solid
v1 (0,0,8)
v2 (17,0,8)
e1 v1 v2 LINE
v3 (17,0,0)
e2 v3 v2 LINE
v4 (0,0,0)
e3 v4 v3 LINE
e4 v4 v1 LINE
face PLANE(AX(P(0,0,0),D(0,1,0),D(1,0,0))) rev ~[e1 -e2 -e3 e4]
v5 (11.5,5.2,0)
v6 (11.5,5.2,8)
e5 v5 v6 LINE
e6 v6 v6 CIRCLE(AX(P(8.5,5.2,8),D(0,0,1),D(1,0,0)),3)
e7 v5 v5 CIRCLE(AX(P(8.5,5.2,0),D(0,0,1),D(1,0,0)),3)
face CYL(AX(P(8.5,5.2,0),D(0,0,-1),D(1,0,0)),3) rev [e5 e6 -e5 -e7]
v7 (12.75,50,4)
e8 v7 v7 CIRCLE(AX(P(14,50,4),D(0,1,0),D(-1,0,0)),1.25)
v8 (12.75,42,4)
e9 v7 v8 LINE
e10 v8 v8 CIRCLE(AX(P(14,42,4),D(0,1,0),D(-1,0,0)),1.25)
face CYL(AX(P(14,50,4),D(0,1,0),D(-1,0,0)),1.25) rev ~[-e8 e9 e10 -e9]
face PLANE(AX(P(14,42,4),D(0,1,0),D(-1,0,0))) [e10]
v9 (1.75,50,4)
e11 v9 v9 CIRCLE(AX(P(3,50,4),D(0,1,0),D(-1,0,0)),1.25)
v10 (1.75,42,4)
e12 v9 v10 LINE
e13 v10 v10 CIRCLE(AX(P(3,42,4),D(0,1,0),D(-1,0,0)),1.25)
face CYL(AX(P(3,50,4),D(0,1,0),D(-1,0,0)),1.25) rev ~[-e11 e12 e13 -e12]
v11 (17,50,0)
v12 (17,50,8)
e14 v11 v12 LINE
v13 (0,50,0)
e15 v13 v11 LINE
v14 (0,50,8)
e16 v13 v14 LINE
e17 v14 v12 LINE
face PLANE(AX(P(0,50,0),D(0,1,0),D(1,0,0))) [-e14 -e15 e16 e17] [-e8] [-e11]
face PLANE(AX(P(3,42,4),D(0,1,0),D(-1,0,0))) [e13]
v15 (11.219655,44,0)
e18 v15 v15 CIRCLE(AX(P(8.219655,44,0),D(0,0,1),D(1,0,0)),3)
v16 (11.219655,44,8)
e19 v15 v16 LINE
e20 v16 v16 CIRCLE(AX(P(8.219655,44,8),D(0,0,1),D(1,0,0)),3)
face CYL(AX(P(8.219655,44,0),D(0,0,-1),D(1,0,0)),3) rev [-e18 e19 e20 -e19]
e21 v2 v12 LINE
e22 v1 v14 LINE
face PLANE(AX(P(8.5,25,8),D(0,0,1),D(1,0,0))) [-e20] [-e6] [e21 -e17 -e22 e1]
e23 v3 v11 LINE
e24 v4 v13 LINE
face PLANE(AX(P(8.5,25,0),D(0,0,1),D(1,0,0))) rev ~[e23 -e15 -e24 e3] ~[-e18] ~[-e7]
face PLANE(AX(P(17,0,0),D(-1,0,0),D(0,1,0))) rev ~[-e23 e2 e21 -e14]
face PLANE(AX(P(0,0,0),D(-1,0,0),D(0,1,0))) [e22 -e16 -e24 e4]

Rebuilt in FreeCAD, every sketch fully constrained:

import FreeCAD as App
import Part
import Sketcher
Q = App.Units.Quantity


def add_polygon(sketch, points):
    """Adds a closed chain of lines whose ends are joined by coincident constraints."""
    first, n = sketch.GeometryCount, len(points)
    for a, b in zip(points, points[1:] + points[:1]):
        sketch.addGeometry(Part.LineSegment(App.Vector(*a, 0), App.Vector(*b, 0)), False)
    for i in range(n):
        sketch.addConstraint(Sketcher.Constraint("Coincident", first + i, 2, first + (i + 1) % n, 1))

doc = App.newDocument("Part")
body = doc.addObject("PartDesign::Body", "Body")

# Sketch on XY plane
sketch1 = body.newObject("Sketcher::SketchObject", "Sketch")
sketch1.AttachmentSupport = (doc.getObject("XY_Plane"), [""])
sketch1.MapMode = "FlatFace"
add_polygon(sketch1, [(0, 50), (0, 0), (17, 0), (17, 50)])  # lines 0-3
sketch1.addGeometry(Part.Circle(App.Vector(8.5, 5.2, 0), App.Vector(0, 0, 1), 3), False)  # 4
sketch1.addGeometry(Part.Circle(App.Vector(8.2, 44, 0), App.Vector(0, 0, 1), 3), False)  # 5
sketch1.addConstraint(Sketcher.Constraint("Vertical", 0))
sketch1.addConstraint(Sketcher.Constraint("Horizontal", 1))
sketch1.addConstraint(Sketcher.Constraint("Vertical", 2))
sketch1.addConstraint(Sketcher.Constraint("Horizontal", 3))
sketch1.addConstraint(Sketcher.Constraint("Coincident", 0, 2, -1, 1))
sketch1.addConstraint(Sketcher.Constraint("Equal", 4, 5))
sketch1.addConstraint(Sketcher.Constraint("Diameter", 4, Q("6 mm")))
sketch1.addConstraint(Sketcher.Constraint("DistanceX", 1, 1, 1, 2, Q("17 mm")))
sketch1.addConstraint(Sketcher.Constraint("DistanceY", 0, 2, 0, 1, Q("50 mm")))
sketch1.addConstraint(Sketcher.Constraint("DistanceY", -1, 1, 5, 3, Q("44 mm")))
sketch1.addConstraint(Sketcher.Constraint("DistanceX", -1, 1, 4, 3, Q("8.5 mm")))
sketch1.addConstraint(Sketcher.Constraint("DistanceY", -1, 1, 4, 3, Q("5.2 mm")))
sketch1.addConstraint(Sketcher.Constraint("DistanceX", -1, 1, 5, 3, Q("8.219655 mm")))
pad1 = body.newObject("PartDesign::Pad", "Pad")
pad1.Profile = sketch1
pad1.Length = 8

# Sketch on XZ plane
sketch2 = body.newObject("Sketcher::SketchObject", "Sketch001")
sketch2.AttachmentSupport = (doc.getObject("XZ_Plane"), [""])
sketch2.MapMode = "FlatFace"
sketch2.AttachmentOffset = App.Placement(App.Vector(0, 0, -50), App.Rotation())
sketch2.addGeometry(Part.Circle(App.Vector(14, 4, 0), App.Vector(0, 0, 1), 1.2), False)
sketch2.addGeometry(Part.Circle(App.Vector(3, 4, 0), App.Vector(0, 0, 1), 1.2), False)
sketch2.addConstraint(Sketcher.Constraint("Equal", 0, 1))
sketch2.addConstraint(Sketcher.Constraint("Horizontal", 0, 3, 1, 3))
sketch2.addConstraint(Sketcher.Constraint("Diameter", 0, Q("2.5 mm")))
sketch2.addConstraint(Sketcher.Constraint("DistanceX", -1, 1, 0, 3, Q("14 mm")))
sketch2.addConstraint(Sketcher.Constraint("DistanceY", -1, 1, 0, 3, Q("4 mm")))
sketch2.addConstraint(Sketcher.Constraint("DistanceX", -1, 1, 1, 3, Q("3 mm")))
pocket1 = body.newObject("PartDesign::Pocket", "Pocket")
pocket1.Profile = sketch2
pocket1.Length = 8
pocket1.Reversed = True

doc.recompute()
